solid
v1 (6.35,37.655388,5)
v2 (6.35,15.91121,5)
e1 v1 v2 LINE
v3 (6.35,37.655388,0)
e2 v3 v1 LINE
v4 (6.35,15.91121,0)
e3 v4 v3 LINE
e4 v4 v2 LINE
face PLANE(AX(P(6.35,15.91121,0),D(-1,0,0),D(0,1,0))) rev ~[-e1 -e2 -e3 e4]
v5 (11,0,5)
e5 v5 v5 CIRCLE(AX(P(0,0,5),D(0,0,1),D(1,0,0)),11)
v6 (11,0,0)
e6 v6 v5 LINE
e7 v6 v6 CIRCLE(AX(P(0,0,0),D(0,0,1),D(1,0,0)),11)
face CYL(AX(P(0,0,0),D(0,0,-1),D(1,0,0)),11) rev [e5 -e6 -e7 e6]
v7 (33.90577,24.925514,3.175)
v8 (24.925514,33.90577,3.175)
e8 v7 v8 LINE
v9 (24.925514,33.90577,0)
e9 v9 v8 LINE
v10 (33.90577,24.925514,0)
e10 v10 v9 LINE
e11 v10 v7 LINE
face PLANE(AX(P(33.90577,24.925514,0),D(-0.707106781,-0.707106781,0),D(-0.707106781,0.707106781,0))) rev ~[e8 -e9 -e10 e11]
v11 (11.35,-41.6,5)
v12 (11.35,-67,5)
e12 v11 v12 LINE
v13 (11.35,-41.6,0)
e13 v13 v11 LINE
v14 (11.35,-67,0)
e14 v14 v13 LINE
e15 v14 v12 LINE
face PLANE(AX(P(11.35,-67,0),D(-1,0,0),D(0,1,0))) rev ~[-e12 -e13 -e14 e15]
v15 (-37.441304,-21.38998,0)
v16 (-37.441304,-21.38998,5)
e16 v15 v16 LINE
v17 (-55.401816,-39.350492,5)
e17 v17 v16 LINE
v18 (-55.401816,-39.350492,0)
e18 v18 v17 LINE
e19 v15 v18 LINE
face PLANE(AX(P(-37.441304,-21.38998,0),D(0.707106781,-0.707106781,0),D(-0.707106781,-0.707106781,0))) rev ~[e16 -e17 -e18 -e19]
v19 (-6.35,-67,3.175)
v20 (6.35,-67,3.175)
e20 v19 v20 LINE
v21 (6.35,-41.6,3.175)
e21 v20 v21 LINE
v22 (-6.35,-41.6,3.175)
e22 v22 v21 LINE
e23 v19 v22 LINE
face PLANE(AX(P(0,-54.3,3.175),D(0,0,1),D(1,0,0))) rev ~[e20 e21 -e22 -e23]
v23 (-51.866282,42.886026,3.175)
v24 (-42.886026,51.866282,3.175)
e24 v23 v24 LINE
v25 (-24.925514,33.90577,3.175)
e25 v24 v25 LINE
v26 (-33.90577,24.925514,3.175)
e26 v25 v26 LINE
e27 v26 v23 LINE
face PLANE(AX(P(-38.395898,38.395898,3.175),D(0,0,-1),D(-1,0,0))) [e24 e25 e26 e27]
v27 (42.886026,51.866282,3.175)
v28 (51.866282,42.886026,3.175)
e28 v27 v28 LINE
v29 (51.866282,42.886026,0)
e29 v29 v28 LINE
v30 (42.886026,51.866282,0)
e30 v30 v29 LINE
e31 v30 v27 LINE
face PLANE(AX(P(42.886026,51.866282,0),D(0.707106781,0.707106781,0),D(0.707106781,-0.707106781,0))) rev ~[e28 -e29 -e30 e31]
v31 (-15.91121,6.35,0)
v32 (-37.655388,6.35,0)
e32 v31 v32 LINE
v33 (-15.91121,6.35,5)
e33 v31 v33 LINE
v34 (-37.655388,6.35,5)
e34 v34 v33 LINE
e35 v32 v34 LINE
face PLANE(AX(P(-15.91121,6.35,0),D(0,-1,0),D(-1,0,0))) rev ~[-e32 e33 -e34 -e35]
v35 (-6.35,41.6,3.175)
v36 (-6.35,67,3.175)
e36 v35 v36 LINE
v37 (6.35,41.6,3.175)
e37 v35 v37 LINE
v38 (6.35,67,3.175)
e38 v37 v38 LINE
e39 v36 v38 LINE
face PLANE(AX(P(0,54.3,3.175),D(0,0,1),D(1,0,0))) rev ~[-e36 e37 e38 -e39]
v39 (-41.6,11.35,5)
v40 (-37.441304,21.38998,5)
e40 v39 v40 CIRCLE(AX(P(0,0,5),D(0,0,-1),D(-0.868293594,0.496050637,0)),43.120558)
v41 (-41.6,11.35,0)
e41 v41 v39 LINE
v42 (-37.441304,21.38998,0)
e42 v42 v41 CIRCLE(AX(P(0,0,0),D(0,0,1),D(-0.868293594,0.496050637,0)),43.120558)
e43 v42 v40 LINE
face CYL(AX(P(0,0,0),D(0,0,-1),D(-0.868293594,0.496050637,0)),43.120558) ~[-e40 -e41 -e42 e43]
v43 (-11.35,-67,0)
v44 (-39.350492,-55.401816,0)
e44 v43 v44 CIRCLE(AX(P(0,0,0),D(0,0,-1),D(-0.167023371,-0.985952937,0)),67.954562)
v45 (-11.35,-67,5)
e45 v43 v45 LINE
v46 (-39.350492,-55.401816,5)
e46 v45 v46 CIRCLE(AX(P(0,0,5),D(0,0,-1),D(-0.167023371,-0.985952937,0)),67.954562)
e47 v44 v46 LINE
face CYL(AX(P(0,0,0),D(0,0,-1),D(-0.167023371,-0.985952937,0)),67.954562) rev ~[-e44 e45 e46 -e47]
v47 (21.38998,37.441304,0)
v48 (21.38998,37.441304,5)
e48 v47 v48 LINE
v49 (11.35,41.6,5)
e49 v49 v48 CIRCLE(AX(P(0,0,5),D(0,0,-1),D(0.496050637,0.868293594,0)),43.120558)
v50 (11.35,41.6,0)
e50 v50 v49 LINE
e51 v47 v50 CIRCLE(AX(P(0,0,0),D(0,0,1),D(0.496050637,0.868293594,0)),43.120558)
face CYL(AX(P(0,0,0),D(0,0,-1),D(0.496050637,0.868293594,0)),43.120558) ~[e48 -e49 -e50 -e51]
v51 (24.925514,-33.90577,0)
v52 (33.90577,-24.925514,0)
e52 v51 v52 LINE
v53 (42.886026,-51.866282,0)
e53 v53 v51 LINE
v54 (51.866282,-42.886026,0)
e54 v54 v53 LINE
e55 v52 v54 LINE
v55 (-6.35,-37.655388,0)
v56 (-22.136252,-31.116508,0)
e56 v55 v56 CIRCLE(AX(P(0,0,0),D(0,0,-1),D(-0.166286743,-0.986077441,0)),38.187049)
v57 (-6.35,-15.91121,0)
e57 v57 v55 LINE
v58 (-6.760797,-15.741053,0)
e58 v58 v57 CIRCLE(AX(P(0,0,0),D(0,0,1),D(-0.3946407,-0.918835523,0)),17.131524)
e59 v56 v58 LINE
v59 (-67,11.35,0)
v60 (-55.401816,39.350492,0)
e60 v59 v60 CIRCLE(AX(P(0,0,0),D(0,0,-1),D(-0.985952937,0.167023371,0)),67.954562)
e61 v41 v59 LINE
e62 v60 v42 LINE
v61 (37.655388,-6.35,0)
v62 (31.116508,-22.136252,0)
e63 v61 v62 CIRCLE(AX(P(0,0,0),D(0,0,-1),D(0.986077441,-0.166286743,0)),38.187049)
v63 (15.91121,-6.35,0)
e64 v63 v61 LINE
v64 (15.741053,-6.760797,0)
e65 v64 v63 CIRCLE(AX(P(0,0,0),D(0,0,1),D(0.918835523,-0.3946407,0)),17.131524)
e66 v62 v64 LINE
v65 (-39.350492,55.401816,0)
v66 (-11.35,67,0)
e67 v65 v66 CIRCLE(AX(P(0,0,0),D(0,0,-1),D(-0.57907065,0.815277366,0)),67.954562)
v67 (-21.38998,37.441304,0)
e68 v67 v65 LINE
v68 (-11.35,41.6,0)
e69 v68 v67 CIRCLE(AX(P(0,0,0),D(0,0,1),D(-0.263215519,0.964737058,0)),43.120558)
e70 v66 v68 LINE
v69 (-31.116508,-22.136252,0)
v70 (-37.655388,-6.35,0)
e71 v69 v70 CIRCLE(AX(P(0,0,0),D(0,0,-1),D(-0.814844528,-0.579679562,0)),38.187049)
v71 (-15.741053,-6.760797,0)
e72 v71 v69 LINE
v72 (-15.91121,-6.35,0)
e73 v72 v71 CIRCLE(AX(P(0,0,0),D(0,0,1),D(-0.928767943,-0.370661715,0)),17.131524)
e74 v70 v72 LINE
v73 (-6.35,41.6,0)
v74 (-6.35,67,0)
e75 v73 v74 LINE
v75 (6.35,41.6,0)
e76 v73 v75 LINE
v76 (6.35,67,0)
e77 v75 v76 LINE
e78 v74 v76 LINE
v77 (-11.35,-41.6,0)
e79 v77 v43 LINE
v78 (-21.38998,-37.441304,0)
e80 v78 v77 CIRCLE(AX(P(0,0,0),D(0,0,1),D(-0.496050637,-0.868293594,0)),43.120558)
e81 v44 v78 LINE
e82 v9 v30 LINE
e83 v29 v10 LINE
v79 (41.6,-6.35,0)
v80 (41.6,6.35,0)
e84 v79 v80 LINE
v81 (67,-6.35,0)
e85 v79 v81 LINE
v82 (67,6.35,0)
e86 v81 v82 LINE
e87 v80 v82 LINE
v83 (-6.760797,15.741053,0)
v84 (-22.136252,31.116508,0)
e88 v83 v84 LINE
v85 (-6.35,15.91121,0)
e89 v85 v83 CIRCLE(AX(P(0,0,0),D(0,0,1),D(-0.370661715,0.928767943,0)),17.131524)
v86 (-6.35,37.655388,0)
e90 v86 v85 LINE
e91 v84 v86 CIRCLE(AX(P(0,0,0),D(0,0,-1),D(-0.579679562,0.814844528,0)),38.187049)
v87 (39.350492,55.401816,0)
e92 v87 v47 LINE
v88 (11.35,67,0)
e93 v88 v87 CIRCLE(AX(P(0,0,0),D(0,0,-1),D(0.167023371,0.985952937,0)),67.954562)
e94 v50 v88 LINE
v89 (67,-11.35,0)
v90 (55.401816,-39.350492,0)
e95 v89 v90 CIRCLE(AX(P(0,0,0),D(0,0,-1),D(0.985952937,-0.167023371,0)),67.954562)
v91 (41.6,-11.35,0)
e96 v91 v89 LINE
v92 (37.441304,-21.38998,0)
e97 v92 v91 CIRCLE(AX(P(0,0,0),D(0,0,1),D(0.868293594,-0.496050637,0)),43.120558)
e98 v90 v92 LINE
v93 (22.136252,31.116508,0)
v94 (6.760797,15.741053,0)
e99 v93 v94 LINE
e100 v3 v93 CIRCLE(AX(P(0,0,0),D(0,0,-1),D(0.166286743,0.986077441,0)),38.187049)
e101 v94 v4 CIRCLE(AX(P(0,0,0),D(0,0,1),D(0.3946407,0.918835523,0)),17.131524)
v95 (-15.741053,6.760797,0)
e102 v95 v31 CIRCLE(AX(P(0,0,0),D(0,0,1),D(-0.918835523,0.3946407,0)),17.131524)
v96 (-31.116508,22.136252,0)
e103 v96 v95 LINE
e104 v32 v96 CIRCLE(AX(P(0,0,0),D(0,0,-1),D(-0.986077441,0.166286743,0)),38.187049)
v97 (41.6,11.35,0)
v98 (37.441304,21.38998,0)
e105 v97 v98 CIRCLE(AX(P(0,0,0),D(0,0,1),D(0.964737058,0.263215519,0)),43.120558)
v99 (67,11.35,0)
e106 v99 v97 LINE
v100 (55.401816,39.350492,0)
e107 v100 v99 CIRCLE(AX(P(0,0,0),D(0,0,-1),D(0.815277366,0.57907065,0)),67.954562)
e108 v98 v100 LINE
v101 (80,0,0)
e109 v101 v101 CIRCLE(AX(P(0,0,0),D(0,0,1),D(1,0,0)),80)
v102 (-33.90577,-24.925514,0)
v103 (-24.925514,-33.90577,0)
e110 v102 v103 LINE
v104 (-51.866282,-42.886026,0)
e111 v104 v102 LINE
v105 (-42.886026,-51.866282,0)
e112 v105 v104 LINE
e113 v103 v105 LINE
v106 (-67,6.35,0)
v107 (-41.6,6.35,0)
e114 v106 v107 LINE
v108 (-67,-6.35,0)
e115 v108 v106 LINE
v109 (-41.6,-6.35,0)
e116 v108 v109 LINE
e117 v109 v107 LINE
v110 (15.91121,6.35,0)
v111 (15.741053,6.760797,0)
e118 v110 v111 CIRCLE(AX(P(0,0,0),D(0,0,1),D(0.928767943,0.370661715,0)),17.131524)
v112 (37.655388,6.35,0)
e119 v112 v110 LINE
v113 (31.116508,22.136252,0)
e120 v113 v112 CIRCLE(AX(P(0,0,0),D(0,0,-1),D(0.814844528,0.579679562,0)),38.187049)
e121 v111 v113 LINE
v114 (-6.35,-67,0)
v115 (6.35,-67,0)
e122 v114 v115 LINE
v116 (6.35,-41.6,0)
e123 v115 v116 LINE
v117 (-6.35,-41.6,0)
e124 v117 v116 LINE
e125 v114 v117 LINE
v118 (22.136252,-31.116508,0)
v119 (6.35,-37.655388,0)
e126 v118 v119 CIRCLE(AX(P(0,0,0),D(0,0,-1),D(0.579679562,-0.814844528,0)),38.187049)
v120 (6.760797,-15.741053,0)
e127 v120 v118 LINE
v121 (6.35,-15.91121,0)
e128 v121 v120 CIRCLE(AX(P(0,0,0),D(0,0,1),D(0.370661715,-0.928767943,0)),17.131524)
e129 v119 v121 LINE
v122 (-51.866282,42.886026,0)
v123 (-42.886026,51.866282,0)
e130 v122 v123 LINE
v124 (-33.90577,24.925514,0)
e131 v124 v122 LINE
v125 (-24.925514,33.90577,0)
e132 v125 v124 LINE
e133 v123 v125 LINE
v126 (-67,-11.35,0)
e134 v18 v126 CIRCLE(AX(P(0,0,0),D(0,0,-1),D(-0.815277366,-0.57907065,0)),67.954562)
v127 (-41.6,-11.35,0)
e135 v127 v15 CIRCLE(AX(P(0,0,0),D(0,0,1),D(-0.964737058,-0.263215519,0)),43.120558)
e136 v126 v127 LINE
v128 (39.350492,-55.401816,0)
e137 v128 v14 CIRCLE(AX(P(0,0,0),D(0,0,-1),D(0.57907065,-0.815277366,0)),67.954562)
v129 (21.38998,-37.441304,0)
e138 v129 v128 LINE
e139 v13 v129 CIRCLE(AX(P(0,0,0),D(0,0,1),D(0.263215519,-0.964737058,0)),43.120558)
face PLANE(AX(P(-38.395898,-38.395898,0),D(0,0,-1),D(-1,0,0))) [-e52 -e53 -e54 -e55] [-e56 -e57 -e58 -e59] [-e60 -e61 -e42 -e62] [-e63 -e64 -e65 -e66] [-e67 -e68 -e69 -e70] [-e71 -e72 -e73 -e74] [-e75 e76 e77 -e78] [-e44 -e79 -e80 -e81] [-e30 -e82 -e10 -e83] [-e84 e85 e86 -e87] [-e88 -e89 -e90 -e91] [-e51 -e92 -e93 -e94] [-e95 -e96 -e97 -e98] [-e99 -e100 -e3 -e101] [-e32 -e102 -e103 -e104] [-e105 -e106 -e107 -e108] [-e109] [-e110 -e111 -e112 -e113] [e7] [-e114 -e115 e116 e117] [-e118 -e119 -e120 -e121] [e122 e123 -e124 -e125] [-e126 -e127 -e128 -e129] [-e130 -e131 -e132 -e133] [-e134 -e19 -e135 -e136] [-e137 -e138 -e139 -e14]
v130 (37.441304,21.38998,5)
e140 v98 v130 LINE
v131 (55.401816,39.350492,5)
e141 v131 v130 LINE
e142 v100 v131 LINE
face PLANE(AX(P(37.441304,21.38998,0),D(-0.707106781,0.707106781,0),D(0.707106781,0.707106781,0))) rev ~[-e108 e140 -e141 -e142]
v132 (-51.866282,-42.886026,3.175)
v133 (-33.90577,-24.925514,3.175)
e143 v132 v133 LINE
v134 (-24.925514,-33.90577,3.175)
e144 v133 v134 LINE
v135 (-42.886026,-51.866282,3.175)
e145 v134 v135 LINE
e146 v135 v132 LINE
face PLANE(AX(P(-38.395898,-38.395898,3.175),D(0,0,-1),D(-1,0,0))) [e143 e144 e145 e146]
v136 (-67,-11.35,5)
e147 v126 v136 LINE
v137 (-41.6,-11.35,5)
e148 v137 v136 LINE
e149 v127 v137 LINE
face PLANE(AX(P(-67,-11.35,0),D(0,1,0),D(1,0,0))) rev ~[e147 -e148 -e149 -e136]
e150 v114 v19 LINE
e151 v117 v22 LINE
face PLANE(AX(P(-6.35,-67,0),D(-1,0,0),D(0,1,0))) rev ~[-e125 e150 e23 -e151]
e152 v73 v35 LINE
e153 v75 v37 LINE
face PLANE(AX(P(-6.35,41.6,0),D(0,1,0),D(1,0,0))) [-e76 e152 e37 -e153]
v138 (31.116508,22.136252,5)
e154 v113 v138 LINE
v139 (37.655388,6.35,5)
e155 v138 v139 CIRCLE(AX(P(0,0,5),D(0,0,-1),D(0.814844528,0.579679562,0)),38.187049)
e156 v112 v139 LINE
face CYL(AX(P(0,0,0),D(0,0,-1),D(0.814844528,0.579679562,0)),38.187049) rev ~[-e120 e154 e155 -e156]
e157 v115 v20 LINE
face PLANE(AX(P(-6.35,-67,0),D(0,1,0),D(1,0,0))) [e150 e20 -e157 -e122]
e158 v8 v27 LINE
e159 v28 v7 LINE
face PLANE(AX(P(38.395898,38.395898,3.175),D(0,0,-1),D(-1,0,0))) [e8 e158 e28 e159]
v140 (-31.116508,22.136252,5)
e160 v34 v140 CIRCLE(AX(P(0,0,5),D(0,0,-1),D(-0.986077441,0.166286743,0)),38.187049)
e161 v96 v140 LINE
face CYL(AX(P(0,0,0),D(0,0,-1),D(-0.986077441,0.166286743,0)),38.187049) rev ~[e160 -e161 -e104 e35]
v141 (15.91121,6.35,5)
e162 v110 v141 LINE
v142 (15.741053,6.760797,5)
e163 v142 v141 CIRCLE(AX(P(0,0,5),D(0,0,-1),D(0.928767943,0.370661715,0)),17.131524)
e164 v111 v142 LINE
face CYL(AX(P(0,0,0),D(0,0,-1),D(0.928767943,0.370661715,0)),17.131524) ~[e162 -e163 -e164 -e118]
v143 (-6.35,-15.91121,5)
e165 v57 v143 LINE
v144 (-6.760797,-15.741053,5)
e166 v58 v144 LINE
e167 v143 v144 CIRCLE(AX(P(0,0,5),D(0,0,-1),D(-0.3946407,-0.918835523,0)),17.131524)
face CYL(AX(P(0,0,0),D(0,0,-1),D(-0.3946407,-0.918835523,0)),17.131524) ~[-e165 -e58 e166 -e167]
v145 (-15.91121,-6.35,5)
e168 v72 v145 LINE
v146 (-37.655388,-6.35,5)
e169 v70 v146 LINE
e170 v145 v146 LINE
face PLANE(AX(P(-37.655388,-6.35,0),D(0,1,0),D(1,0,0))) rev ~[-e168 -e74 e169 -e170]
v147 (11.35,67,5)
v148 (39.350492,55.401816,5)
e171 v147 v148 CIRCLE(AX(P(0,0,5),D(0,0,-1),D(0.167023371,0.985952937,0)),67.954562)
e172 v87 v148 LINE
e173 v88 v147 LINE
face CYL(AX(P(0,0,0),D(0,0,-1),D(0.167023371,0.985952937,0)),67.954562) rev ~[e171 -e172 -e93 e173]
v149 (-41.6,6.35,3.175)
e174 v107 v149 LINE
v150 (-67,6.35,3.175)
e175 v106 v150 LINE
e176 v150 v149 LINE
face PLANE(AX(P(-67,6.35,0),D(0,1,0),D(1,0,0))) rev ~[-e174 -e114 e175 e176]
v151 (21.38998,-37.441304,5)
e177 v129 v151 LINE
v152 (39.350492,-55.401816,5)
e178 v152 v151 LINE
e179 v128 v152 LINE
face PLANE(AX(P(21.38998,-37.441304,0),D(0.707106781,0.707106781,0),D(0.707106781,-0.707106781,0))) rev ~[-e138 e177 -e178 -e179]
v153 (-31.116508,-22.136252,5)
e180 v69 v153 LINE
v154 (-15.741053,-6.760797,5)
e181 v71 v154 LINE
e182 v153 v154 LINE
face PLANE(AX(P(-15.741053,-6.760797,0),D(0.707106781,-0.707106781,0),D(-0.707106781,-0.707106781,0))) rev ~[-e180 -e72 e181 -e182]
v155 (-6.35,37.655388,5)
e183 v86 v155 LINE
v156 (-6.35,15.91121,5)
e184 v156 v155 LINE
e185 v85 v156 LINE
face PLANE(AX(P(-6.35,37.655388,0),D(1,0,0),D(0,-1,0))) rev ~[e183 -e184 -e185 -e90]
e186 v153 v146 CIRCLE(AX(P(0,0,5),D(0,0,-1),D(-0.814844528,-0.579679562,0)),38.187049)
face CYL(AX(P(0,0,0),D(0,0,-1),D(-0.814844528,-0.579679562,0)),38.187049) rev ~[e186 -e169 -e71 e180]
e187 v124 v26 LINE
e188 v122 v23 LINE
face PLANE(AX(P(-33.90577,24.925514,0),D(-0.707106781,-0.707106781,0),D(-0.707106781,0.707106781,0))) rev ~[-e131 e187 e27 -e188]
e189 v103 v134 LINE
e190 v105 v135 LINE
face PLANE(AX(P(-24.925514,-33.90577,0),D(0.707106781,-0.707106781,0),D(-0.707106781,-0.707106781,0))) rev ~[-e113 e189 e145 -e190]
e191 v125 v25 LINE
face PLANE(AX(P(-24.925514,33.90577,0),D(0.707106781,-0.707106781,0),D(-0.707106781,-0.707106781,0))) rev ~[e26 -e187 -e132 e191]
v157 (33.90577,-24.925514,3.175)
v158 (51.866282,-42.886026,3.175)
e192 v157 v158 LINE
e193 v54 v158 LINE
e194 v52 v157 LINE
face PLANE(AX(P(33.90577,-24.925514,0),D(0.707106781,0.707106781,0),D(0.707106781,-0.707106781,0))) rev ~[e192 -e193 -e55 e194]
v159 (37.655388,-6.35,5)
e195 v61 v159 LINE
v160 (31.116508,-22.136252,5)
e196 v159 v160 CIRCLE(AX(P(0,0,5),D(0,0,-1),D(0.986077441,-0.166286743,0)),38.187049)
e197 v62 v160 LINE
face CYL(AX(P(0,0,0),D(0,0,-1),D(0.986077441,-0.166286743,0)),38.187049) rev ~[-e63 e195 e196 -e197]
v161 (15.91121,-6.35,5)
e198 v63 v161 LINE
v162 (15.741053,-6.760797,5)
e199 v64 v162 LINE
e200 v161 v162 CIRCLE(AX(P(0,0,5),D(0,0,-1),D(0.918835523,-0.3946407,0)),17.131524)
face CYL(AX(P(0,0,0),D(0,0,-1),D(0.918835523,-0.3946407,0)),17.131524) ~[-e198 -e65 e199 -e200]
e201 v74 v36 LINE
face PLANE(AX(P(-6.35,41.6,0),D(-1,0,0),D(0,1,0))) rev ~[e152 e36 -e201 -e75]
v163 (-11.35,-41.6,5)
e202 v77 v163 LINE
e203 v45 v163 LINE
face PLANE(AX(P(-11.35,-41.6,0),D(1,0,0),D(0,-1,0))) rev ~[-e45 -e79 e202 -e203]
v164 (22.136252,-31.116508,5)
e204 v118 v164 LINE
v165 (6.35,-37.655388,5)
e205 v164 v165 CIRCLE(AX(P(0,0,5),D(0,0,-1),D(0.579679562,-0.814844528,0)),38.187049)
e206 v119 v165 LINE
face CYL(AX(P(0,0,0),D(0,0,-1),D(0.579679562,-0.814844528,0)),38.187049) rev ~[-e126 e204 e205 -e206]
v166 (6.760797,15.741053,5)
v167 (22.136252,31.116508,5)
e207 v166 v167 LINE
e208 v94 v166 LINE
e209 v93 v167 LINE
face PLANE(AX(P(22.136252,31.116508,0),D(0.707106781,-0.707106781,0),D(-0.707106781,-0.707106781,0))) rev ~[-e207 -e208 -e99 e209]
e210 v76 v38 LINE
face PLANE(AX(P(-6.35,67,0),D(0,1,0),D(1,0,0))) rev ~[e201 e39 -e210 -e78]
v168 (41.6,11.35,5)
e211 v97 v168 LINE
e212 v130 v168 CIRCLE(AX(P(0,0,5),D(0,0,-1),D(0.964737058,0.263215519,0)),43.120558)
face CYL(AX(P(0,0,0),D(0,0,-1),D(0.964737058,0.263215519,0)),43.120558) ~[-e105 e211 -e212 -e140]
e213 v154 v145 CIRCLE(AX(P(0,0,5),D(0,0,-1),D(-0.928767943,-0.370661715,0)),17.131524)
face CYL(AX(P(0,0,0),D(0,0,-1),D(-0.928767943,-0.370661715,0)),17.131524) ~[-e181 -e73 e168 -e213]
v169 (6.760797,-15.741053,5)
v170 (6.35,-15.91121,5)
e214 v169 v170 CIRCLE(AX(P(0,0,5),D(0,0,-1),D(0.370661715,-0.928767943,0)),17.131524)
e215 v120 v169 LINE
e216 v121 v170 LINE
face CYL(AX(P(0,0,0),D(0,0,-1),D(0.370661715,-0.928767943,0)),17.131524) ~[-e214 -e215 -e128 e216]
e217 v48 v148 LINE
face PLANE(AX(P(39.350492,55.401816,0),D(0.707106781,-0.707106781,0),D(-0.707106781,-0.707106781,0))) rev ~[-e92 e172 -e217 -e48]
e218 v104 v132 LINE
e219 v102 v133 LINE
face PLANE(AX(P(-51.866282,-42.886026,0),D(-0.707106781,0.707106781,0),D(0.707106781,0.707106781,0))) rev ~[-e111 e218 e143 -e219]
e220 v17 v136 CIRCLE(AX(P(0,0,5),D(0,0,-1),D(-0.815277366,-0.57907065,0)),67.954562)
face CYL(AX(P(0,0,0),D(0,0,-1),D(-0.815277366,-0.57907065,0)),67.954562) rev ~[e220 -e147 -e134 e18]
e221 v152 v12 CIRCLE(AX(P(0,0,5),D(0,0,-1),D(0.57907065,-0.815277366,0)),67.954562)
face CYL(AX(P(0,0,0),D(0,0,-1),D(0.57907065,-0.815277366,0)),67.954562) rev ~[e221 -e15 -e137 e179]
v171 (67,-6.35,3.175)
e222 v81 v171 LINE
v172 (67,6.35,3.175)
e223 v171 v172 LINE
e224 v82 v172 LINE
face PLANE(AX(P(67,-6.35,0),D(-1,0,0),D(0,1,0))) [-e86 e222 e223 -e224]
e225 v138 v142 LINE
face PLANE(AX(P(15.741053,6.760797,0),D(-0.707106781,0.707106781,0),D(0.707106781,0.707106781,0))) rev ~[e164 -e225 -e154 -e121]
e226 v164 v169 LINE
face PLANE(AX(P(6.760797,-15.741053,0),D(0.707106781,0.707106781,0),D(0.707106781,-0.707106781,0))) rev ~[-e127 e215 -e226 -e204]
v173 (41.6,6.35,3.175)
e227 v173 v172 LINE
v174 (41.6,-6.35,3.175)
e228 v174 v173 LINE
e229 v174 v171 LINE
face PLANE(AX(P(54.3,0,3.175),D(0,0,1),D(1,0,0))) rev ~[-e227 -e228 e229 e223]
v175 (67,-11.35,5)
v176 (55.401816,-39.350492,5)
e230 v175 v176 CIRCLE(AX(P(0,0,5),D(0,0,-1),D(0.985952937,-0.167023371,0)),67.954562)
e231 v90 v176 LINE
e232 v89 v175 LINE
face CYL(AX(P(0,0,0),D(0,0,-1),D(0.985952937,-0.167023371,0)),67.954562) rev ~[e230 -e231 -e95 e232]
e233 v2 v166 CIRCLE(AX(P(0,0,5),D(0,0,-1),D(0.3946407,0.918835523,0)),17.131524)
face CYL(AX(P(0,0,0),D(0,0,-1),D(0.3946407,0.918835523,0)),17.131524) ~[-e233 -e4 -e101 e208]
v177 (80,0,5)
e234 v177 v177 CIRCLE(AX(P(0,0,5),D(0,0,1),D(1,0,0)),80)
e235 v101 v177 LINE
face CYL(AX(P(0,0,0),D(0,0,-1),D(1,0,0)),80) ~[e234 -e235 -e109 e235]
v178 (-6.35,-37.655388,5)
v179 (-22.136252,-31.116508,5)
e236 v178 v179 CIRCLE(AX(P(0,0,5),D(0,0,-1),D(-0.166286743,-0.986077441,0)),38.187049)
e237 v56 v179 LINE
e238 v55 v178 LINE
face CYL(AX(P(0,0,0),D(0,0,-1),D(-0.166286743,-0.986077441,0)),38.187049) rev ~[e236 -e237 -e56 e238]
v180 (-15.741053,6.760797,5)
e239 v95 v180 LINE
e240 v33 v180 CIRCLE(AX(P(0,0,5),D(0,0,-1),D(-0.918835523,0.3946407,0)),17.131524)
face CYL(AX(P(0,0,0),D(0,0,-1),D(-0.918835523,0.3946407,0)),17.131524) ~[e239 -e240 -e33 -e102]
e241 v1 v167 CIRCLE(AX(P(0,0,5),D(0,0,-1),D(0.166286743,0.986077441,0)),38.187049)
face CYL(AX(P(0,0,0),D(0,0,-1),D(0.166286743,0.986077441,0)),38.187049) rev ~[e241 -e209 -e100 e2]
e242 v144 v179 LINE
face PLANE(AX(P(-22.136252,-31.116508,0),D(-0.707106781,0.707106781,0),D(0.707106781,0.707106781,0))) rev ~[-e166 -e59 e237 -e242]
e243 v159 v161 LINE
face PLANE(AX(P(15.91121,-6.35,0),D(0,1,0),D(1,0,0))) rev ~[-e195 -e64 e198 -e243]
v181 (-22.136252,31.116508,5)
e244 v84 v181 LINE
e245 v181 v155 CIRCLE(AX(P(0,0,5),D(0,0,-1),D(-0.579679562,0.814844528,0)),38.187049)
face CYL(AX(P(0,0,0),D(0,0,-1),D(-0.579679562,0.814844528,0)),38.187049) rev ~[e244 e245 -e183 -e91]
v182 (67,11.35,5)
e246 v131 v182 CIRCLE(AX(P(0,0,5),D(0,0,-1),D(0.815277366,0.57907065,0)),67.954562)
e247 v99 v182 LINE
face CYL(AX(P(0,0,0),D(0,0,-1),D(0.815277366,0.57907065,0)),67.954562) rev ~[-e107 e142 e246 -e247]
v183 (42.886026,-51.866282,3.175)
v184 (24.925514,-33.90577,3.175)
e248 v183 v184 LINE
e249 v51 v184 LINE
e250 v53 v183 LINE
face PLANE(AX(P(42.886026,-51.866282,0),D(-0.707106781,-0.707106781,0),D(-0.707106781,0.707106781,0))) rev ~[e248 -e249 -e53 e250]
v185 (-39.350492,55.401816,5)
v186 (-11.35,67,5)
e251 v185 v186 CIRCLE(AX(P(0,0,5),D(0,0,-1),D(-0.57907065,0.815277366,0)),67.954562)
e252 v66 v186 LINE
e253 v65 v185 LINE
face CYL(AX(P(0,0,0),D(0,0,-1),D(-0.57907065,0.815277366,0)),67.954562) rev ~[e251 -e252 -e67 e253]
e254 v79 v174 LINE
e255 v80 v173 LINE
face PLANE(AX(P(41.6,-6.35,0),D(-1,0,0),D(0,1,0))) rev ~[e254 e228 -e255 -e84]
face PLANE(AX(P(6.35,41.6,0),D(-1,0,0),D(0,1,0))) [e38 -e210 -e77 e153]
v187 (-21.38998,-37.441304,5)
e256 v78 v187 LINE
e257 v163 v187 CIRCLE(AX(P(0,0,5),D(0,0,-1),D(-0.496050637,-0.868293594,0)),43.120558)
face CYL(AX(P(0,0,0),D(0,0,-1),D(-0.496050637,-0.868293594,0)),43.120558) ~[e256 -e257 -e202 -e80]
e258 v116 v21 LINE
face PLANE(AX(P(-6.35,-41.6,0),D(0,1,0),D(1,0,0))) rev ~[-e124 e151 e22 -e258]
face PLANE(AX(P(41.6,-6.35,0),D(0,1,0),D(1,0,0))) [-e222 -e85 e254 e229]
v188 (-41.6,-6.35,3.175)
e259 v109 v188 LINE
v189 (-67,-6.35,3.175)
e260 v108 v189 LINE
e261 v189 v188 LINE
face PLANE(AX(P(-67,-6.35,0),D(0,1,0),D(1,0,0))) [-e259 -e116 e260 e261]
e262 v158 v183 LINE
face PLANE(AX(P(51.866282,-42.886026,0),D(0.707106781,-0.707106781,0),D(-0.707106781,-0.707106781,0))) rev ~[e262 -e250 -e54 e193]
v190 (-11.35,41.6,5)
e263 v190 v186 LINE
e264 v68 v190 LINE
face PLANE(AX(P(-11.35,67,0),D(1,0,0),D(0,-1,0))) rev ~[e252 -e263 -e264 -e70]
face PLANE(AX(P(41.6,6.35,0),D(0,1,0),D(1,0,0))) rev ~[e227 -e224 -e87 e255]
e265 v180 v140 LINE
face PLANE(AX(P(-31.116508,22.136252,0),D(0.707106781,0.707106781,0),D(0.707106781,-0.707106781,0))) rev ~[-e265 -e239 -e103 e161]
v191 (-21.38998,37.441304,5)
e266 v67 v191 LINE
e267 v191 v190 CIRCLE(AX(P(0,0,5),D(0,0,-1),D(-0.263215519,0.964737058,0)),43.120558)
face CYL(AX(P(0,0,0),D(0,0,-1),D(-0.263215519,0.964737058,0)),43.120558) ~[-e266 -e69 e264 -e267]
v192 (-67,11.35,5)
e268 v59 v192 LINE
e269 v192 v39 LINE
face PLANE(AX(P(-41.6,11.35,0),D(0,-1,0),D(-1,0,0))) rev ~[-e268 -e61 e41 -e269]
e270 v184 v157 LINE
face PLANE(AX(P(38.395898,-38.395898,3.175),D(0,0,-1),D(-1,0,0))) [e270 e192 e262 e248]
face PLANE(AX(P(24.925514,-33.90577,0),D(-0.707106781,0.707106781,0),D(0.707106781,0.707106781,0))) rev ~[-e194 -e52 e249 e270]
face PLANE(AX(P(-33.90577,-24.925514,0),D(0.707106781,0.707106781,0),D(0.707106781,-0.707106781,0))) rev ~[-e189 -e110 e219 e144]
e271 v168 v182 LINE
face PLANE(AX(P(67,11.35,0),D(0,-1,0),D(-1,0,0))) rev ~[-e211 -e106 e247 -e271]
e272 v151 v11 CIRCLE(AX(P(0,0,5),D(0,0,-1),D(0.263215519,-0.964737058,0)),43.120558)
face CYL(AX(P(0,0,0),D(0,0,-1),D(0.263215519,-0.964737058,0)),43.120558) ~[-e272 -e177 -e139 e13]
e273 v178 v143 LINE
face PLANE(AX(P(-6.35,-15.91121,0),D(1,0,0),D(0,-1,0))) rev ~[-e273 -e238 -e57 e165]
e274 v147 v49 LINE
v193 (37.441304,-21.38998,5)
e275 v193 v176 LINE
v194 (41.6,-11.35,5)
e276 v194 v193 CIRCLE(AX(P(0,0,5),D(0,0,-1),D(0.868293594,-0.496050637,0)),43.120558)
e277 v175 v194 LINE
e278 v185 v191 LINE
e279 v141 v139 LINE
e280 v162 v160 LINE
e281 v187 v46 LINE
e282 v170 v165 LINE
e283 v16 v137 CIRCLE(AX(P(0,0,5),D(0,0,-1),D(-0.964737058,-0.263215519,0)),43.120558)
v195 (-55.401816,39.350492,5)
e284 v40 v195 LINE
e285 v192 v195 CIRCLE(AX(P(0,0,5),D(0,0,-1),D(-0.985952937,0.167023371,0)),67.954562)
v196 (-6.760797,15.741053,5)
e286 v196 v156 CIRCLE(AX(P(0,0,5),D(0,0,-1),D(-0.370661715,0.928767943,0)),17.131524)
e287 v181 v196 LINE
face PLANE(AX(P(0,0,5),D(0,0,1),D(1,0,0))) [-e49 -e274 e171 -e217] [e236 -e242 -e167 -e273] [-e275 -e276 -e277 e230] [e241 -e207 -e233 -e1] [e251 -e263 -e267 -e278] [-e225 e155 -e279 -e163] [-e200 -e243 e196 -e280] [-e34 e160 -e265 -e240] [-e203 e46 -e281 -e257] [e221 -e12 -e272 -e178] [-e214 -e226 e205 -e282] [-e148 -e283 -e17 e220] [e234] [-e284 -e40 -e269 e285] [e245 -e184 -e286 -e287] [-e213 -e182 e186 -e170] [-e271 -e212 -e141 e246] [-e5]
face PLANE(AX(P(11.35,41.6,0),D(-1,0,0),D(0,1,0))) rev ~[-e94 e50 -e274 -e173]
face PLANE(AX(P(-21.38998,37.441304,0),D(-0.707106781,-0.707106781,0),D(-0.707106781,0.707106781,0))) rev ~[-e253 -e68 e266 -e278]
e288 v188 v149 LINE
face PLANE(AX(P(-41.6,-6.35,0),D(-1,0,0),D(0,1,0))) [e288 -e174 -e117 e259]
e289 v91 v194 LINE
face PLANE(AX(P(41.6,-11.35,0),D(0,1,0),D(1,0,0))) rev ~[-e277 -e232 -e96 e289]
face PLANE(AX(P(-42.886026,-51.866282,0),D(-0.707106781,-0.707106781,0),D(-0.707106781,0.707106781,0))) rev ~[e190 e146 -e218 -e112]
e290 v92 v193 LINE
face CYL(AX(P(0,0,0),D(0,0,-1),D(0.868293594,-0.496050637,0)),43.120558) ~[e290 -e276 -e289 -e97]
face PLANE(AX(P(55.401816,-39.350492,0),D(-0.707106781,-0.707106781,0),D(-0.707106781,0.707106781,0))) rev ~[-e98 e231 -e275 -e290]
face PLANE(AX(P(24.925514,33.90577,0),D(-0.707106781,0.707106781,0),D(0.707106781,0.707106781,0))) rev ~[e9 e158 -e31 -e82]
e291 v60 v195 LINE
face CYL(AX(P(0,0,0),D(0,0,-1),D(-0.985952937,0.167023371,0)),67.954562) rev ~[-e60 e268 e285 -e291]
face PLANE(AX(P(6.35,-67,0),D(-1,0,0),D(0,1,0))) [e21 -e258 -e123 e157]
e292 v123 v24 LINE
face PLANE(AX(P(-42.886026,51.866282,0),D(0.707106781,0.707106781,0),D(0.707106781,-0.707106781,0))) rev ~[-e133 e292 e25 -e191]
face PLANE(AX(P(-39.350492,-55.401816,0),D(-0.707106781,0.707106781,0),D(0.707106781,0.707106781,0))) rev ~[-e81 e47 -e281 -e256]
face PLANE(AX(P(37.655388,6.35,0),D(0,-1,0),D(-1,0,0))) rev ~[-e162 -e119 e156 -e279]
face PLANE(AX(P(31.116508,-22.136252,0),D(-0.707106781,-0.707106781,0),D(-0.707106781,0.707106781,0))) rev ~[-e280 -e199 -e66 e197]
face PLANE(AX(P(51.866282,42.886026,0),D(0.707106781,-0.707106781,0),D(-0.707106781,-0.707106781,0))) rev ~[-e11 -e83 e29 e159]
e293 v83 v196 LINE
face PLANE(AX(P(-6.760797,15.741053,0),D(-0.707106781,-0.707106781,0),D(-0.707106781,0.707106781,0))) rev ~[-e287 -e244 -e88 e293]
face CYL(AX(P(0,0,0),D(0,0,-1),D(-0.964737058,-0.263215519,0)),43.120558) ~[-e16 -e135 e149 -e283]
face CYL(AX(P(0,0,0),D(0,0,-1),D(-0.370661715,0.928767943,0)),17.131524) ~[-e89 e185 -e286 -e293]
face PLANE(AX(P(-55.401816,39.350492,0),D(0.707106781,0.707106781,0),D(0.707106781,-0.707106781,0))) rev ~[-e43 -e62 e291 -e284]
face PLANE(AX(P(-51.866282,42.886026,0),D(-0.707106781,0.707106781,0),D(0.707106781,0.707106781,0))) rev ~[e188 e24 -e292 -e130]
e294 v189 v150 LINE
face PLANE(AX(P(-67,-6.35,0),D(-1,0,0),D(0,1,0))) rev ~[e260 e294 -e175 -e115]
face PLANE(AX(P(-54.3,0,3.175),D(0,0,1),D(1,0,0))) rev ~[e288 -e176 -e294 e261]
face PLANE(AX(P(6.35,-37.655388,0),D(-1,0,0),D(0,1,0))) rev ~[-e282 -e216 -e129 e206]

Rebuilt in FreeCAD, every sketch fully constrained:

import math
import FreeCAD as App
import Part
import Sketcher

V = App.Vector

doc = App.newDocument("Part")
params = doc.addObject("Spreadsheet::Sheet", "Params")
for row, (alias, value) in enumerate([
    ("sketch1_diameter", "160 mm"),
    ("sketch1_diameter2", "22 mm"),
    ("pad1_length", "5 mm"),
    ("sketch2_width", "25.4 mm"),
    ("sketch2_width2", "12.7 mm"),
    ("sketch2_length", "25.4 mm"),
    ("sketch2_length2", "12.7 mm"),
    ("pocket1_length", "3.175 mm"),
    ("pocket2_length", "19 mm"),
    ("sketch4_width", "25.4 mm"),
    ("sketch4_length", "25.4 mm"),
    ("pocket3_length", "19 mm"),
], start=1):
    params.set(f"A{row}", alias)
    params.set(f"B{row}", "=" + value)
    params.setAlias(f"B{row}", alias)

body = doc.addObject("PartDesign::Body", "Body")

sketch1 = doc.addObject("Sketcher::SketchObject", "Sketch")
body.addObject(sketch1)
sketch1.AttachmentSupport = (doc.XY_Plane, [""])
sketch1.MapMode = "FlatFace"
sketch1.addGeometry([
    Part.Circle(V(0, 0, 0), V(0, 0, 1), 80),
    Part.Circle(V(0, 0, 0), V(0, 0, 1), 11),
], False)
sketch1.addConstraint([
    Sketcher.Constraint("Coincident", 0, 3, -1, 1),
    Sketcher.Constraint("Coincident", 1, 3, -1, 1),
    Sketcher.Constraint("Diameter", 0, 160.0),
    Sketcher.Constraint("Diameter", 1, 22.0),
])
sketch1.setExpression("Constraints[2]", "Params.sketch1_diameter")
sketch1.setExpression("Constraints[3]", "Params.sketch1_diameter2")
pad1 = doc.addObject("PartDesign::Pad", "Pad")
body.addObject(pad1)
pad1.Profile = sketch1
pad1.setExpression("Length", "Params.pad1_length")

sketch2 = doc.addObject("Sketcher::SketchObject", "Sketch001")
body.addObject(sketch2)
sketch2.AttachmentSupport = (doc.XY_Plane, [""])
sketch2.MapMode = "FlatFace"
sketch2.addGeometry([
    Part.LineSegment(V(52, -43, 0), V(34, -25, 0)),
    Part.LineSegment(V(34, -25, 0), V(25, -34, 0)),
    Part.LineSegment(V(25, -34, 0), V(43, -52, 0)),
    Part.LineSegment(V(43, -52, 0), V(52, -43, 0)),
    Part.LineSegment(V(42, 6, 0), V(42, -6, 0)),
    Part.LineSegment(V(42, -6, 0), V(67, -6, 0)),
    Part.LineSegment(V(67, -6, 0), V(67, 6, 0)),
    Part.LineSegment(V(67, 6, 0), V(42, 6, 0)),
    Part.LineSegment(V(-6, -42, 0), V(-6, -67, 0)),
    Part.LineSegment(V(-6, -67, 0), V(6, -67, 0)),
    Part.LineSegment(V(6, -67, 0), V(6, -42, 0)),
    Part.LineSegment(V(6, -42, 0), V(-6, -42, 0)),
    Part.LineSegment(V(-43, -52, 0), V(-25, -34, 0)),
    Part.LineSegment(V(-25, -34, 0), V(-34, -25, 0)),
    Part.LineSegment(V(-34, -25, 0), V(-52, -43, 0)),
    Part.LineSegment(V(-52, -43, 0), V(-43, -52, 0)),
    Part.LineSegment(V(-67, 6, 0), V(-67, -6, 0)),
    Part.LineSegment(V(-67, -6, 0), V(-42, -6, 0)),
    Part.LineSegment(V(-42, -6, 0), V(-42, 6, 0)),
    Part.LineSegment(V(-42, 6, 0), V(-67, 6, 0)),
    Part.LineSegment(V(-52, 43, 0), V(-34, 25, 0)),
    Part.LineSegment(V(-34, 25, 0), V(-25, 34, 0)),
    Part.LineSegment(V(-25, 34, 0), V(-43, 52, 0)),
    Part.LineSegment(V(-43, 52, 0), V(-52, 43, 0)),
    Part.LineSegment(V(-6, 67, 0), V(-6, 42, 0)),
    Part.LineSegment(V(-6, 42, 0), V(6, 42, 0)),
    Part.LineSegment(V(6, 42, 0), V(6, 67, 0)),
    Part.LineSegment(V(6, 67, 0), V(-6, 67, 0)),
    Part.LineSegment(V(43, 52, 0), V(25, 34, 0)),
    Part.LineSegment(V(25, 34, 0), V(34, 25, 0)),
    Part.LineSegment(V(34, 25, 0), V(52, 43, 0)),
    Part.LineSegment(V(52, 43, 0), V(43, 52, 0)),
], False)
sketch2.addConstraint([
    Sketcher.Constraint("Coincident", 0, 2, 1, 1),
    Sketcher.Constraint("Coincident", 1, 2, 2, 1),
    Sketcher.Constraint("Coincident", 2, 2, 3, 1),
    Sketcher.Constraint("Coincident", 3, 2, 0, 1),
    Sketcher.Constraint("Coincident", 4, 2, 5, 1),
    Sketcher.Constraint("Coincident", 5, 2, 6, 1),
    Sketcher.Constraint("Coincident", 6, 2, 7, 1),
    Sketcher.Constraint("Coincident", 7, 2, 4, 1),
    Sketcher.Constraint("Coincident", 8, 2, 9, 1),
    Sketcher.Constraint("Coincident", 9, 2, 10, 1),
    Sketcher.Constraint("Coincident", 10, 2, 11, 1),
    Sketcher.Constraint("Coincident", 11, 2, 8, 1),
    Sketcher.Constraint("Coincident", 12, 2, 13, 1),
    Sketcher.Constraint("Coincident", 13, 2, 14, 1),
    Sketcher.Constraint("Coincident", 14, 2, 15, 1),
    Sketcher.Constraint("Coincident", 15, 2, 12, 1),
    Sketcher.Constraint("Coincident", 16, 2, 17, 1),
    Sketcher.Constraint("Coincident", 17, 2, 18, 1),
    Sketcher.Constraint("Coincident", 18, 2, 19, 1),
    Sketcher.Constraint("Coincident", 19, 2, 16, 1),
    Sketcher.Constraint("Coincident", 20, 2, 21, 1),
    Sketcher.Constraint("Coincident", 21, 2, 22, 1),
    Sketcher.Constraint("Coincident", 22, 2, 23, 1),
    Sketcher.Constraint("Coincident", 23, 2, 20, 1),
    Sketcher.Constraint("Coincident", 24, 2, 25, 1),
    Sketcher.Constraint("Coincident", 25, 2, 26, 1),
    Sketcher.Constraint("Coincident", 26, 2, 27, 1),
    Sketcher.Constraint("Coincident", 27, 2, 24, 1),
    Sketcher.Constraint("Coincident", 28, 2, 29, 1),
    Sketcher.Constraint("Coincident", 29, 2, 30, 1),
    Sketcher.Constraint("Coincident", 30, 2, 31, 1),
    Sketcher.Constraint("Coincident", 31, 2, 28, 1),
    Sketcher.Constraint("Vertical", 4),
    Sketcher.Constraint("Horizontal", 5),
    Sketcher.Constraint("Vertical", 6),
    Sketcher.Constraint("Horizontal", 7),
    Sketcher.Constraint("Vertical", 8),
    Sketcher.Constraint("Horizontal", 9),
    Sketcher.Constraint("Vertical", 10),
    Sketcher.Constraint("Horizontal", 11),
    Sketcher.Constraint("Vertical", 16),
    Sketcher.Constraint("Horizontal", 17),
    Sketcher.Constraint("Vertical", 18),
    Sketcher.Constraint("Horizontal", 19),
    Sketcher.Constraint("Vertical", 24),
    Sketcher.Constraint("Horizontal", 25),
    Sketcher.Constraint("Vertical", 26),
    Sketcher.Constraint("Horizontal", 27),
    Sketcher.Constraint("Symmetric", 6, 2, 16, 2, -1, 1),
    Sketcher.Constraint("Symmetric", 4, 2, 18, 2, -1, 1),
    Sketcher.Constraint("Symmetric", 0, 2, 20, 2, -1, 1),
    Sketcher.Constraint("Symmetric", 1, 2, 21, 2, -1, 1),
    Sketcher.Constraint("Symmetric", 2, 2, 22, 2, -1, 1),
    Sketcher.Constraint("Symmetric", 3, 2, 23, 2, -1, 1),
    Sketcher.Constraint("Symmetric", 10, 2, 24, 2, -1, 1),
    Sketcher.Constraint("Symmetric", 8, 2, 26, 2, -1, 1),
    Sketcher.Constraint("Symmetric", 12, 2, 28, 2, -1, 1),
    Sketcher.Constraint("Symmetric", 13, 2, 29, 2, -1, 1),
    Sketcher.Constraint("Symmetric", 14, 2, 30, 2, -1, 1),
    Sketcher.Constraint("Symmetric", 15, 2, 31, 2, -1, 1),
    Sketcher.Constraint("Symmetric", 1, 2, 12, 2, -2),
    Sketcher.Constraint("Symmetric", 0, 2, 13, 2, -2),
    Sketcher.Constraint("Symmetric", 3, 2, 14, 2, -2),
    Sketcher.Constraint("Symmetric", 2, 2, 15, 2, -2),
    Sketcher.Constraint("Perpendicular", 0, 1),
    Sketcher.Constraint("Perpendicular", 1, 2),
    Sketcher.Constraint("Perpendicular", 2, 3),
    Sketcher.Constraint("Parallel", 3, 12),
    Sketcher.Constraint("Horizontal", 5, 2, 16, 2),
    Sketcher.Constraint("Vertical", 11, 2, 24, 2),
    Sketcher.Constraint("Equal", 27, 4),
    Sketcher.Constraint("Equal", 19, 8),
    Sketcher.Constraint("DistanceX", 5, 1, 5, 2, 25.4),
    Sketcher.Constraint("DistanceX", 9, 1, 9, 2, 12.7),
    Sketcher.Constraint("DistanceX", -1, 1, 5, 2, 67.0),
    Sketcher.Constraint("DistanceY", 8, 2, -1, 1, 67.0),
    Sketcher.Constraint("Distance", 0, 25.4),
    Sketcher.Constraint("Distance", 1, 12.7),
    Sketcher.Constraint("DistanceX", -1, 1, 0, 2, 33.90577),
    Sketcher.Constraint("DistanceY", 1, 2, -1, 1, 33.90577),
])
sketch2.setExpression("Constraints[72]", "Params.sketch2_width")
sketch2.setExpression("Constraints[73]", "Params.sketch2_width2")
sketch2.setExpression("Constraints[76]", "Params.sketch2_length")
sketch2.setExpression("Constraints[77]", "Params.sketch2_length2")
pocket1 = doc.addObject("PartDesign::Pocket", "Pocket")
body.addObject(pocket1)
pocket1.Profile = sketch2
pocket1.setExpression("Length", "Params.pocket1_length")
pocket1.Reversed = True

sketch3 = doc.addObject("Sketcher::SketchObject", "Sketch002")
body.addObject(sketch3)
sketch3.AttachmentSupport = (doc.XY_Plane, [""])
sketch3.MapMode = "FlatFace"
sketch3.addGeometry([
    Part.ArcOfCircle(Part.Circle(V(0, 0, 0), V(0, 0, 1), 38.19), math.radians(-170), math.radians(-145)),
    Part.LineSegment(V(-37.66, -6.35, 0), V(-15.91, -6.35, 0)),
    Part.ArcOfCircle(Part.Circle(V(0, 0, 0), V(0, 0, 1), 17.13), math.radians(-158.24), math.radians(-156.76)),
    Part.LineSegment(V(-15.74, -6.76, 0), V(-31.12, -22.14, 0)),
    Part.LineSegment(V(-15.91, 6.35, 0), V(-37.66, 6.35, 0)),
    Part.ArcOfCircle(Part.Circle(V(0, 0, 0), V(0, 0, 1), 38.19), math.radians(145), math.radians(170)),
    Part.LineSegment(V(-31.12, 22.14, 0), V(-15.74, 6.76, 0)),
    Part.ArcOfCircle(Part.Circle(V(0, 0, 0), V(0, 0, 1), 17.13), math.radians(156.76), math.radians(158.24)),
    Part.LineSegment(V(-6.76, 15.74, 0), V(-22.14, 31.12, 0)),
    Part.ArcOfCircle(Part.Circle(V(0, 0, 0), V(0, 0, 1), 38.19), math.radians(100), math.radians(125)),
    Part.LineSegment(V(-6.35, 37.66, 0), V(-6.35, 15.91, 0)),
    Part.ArcOfCircle(Part.Circle(V(0, 0, 0), V(0, 0, 1), 17.13), math.radians(111.76), math.radians(113.24)),
    Part.LineSegment(V(6.35, 15.91, 0), V(6.35, 37.66, 0)),
    Part.ArcOfCircle(Part.Circle(V(0, 0, 0), V(0, 0, 1), 38.19), math.radians(55), math.radians(80)),
    Part.LineSegment(V(22.14, 31.12, 0), V(6.76, 15.74, 0)),
    Part.ArcOfCircle(Part.Circle(V(0, 0, 0), V(0, 0, 1), 17.13), math.radians(66.76), math.radians(68.24)),
    Part.ArcOfCircle(Part.Circle(V(0, 0, 0), V(0, 0, 1), 38.19), math.radians(10), math.radians(35)),
    Part.LineSegment(V(37.66, 6.35, 0), V(15.91, 6.35, 0)),
    Part.ArcOfCircle(Part.Circle(V(0, 0, 0), V(0, 0, 1), 17.13), math.radians(21.76), math.radians(23.24)),
    Part.LineSegment(V(15.74, 6.76, 0), V(31.12, 22.14, 0)),
    Part.ArcOfCircle(Part.Circle(V(0, 0, 0), V(0, 0, 1), 38.19), math.radians(-35), math.radians(-10)),
    Part.LineSegment(V(31.12, -22.14, 0), V(15.74, -6.76, 0)),
    Part.ArcOfCircle(Part.Circle(V(0, 0, 0), V(0, 0, 1), 17.13), math.radians(-23.24), math.radians(-21.76)),
    Part.LineSegment(V(15.91, -6.35, 0), V(37.66, -6.35, 0)),
    Part.ArcOfCircle(Part.Circle(V(0, 0, 0), V(0, 0, 1), 38.19), math.radians(-80), math.radians(-55)),
    Part.LineSegment(V(6.35, -37.66, 0), V(6.35, -15.91, 0)),
    Part.ArcOfCircle(Part.Circle(V(0, 0, 0), V(0, 0, 1), 17.13), math.radians(-68.24), math.radians(-66.76)),
    Part.LineSegment(V(6.76, -15.74, 0), V(22.14, -31.12, 0)),
    Part.ArcOfCircle(Part.Circle(V(0, 0, 0), V(0, 0, 1), 38.19), math.radians(-125), math.radians(-100)),
    Part.LineSegment(V(-22.14, -31.12, 0), V(-6.76, -15.74, 0)),
    Part.ArcOfCircle(Part.Circle(V(0, 0, 0), V(0, 0, 1), 17.13), math.radians(-113.24), math.radians(-111.76)),
    Part.LineSegment(V(-6.35, -15.91, 0), V(-6.35, -37.66, 0)),
], False)
sketch3.addConstraint([
    Sketcher.Constraint("Coincident", 0, 1, 1, 1),
    Sketcher.Constraint("Coincident", 1, 2, 2, 1),
    Sketcher.Constraint("Coincident", 2, 2, 3, 1),
    Sketcher.Constraint("Coincident", 3, 2, 0, 2),
    Sketcher.Constraint("Coincident", 4, 2, 5, 2),
    Sketcher.Constraint("Coincident", 5, 1, 6, 1),
    Sketcher.Constraint("Coincident", 6, 2, 7, 1),
    Sketcher.Constraint("Coincident", 7, 2, 4, 1),
    Sketcher.Constraint("Coincident", 8, 2, 9, 2),
    Sketcher.Constraint("Coincident", 9, 1, 10, 1),
    Sketcher.Constraint("Coincident", 10, 2, 11, 1),
    Sketcher.Constraint("Coincident", 11, 2, 8, 1),
    Sketcher.Constraint("Coincident", 12, 2, 13, 2),
    Sketcher.Constraint("Coincident", 13, 1, 14, 1),
    Sketcher.Constraint("Coincident", 14, 2, 15, 1),
    Sketcher.Constraint("Coincident", 15, 2, 12, 1),
    Sketcher.Constraint("Coincident", 16, 1, 17, 1),
    Sketcher.Constraint("Coincident", 17, 2, 18, 1),
    Sketcher.Constraint("Coincident", 18, 2, 19, 1),
    Sketcher.Constraint("Coincident", 19, 2, 16, 2),
    Sketcher.Constraint("Coincident", 20, 1, 21, 1),
    Sketcher.Constraint("Coincident", 21, 2, 22, 1),
    Sketcher.Constraint("Coincident", 22, 2, 23, 1),
    Sketcher.Constraint("Coincident", 23, 2, 20, 2),
    Sketcher.Constraint("Coincident", 24, 1, 25, 1),
    Sketcher.Constraint("Coincident", 25, 2, 26, 1),
    Sketcher.Constraint("Coincident", 26, 2, 27, 1),
    Sketcher.Constraint("Coincident", 27, 2, 24, 2),
    Sketcher.Constraint("Coincident", 28, 1, 29, 1),
    Sketcher.Constraint("Coincident", 29, 2, 30, 1),
    Sketcher.Constraint("Coincident", 30, 2, 31, 1),
    Sketcher.Constraint("Coincident", 31, 2, 28, 2),
    Sketcher.Constraint("Horizontal", 1),
    Sketcher.Constraint("Horizontal", 4),
    Sketcher.Constraint("Vertical", 10),
    Sketcher.Constraint("Vertical", 12),
    Sketcher.Constraint("Horizontal", 17),
    Sketcher.Constraint("Horizontal", 23),
    Sketcher.Constraint("Vertical", 25),
    Sketcher.Constraint("Vertical", 31),
    Sketcher.Constraint("Coincident", 0, 3, -1, 1),
    Sketcher.Constraint("Coincident", 2, 3, -1, 1),
    Sketcher.Constraint("Coincident", 5, 3, -1, 1),
    Sketcher.Constraint("Coincident", 7, 3, -1, 1),
    Sketcher.Constraint("Coincident", 9, 3, -1, 1),
    Sketcher.Constraint("Coincident", 11, 3, -1, 1),
    Sketcher.Constraint("Coincident", 13, 3, -1, 1),
    Sketcher.Constraint("Coincident", 15, 3, -1, 1),
    Sketcher.Constraint("Coincident", 16, 3, -1, 1),
    Sketcher.Constraint("Coincident", 18, 3, -1, 1),
    Sketcher.Constraint("Coincident", 20, 3, -1, 1),
    Sketcher.Constraint("Coincident", 22, 3, -1, 1),
    Sketcher.Constraint("Coincident", 24, 3, -1, 1),
    Sketcher.Constraint("Coincident", 26, 3, -1, 1),
    Sketcher.Constraint("Coincident", 28, 3, -1, 1),
    Sketcher.Constraint("Coincident", 30, 3, -1, 1),
    Sketcher.Constraint("Equal", 0, 5),
    Sketcher.Constraint("Equal", 2, 7),
    Sketcher.Constraint("Equal", 5, 9),
    Sketcher.Constraint("Equal", 7, 11),
    Sketcher.Constraint("Equal", 9, 13),
    Sketcher.Constraint("Equal", 11, 15),
    Sketcher.Constraint("Equal", 13, 16),
    Sketcher.Constraint("Equal", 15, 18),
    Sketcher.Constraint("Equal", 16, 20),
    Sketcher.Constraint("Equal", 18, 22),
    Sketcher.Constraint("Equal", 20, 24),
    Sketcher.Constraint("Equal", 22, 26),
    Sketcher.Constraint("Equal", 24, 28),
    Sketcher.Constraint("Equal", 26, 30),
    Sketcher.Constraint("Perpendicular", 3, 6),
    Sketcher.Constraint("Parallel", 6, 8),
    Sketcher.Constraint("Perpendicular", 8, 14),
    Sketcher.Constraint("Parallel", 14, 19),
    Sketcher.Constraint("Perpendicular", 19, 21),
    Sketcher.Constraint("Parallel", 21, 27),
    Sketcher.Constraint("Perpendicular", 27, 29),
    Sketcher.Constraint("Horizontal", 9, 1, 12, 2),
    Sketcher.Constraint("Horizontal", 8, 2, 13, 1),
    Sketcher.Constraint("Horizontal", 11, 2, 14, 2),
    Sketcher.Constraint("Horizontal", 7, 2, 16, 1),
    Sketcher.Constraint("Horizontal", 6, 2, 18, 2),
    Sketcher.Constraint("Horizontal", 3, 2, 20, 1),
    Sketcher.Constraint("Horizontal", 1, 2, 22, 2),
    Sketcher.Constraint("Horizontal", 27, 2, 28, 1),
    Sketcher.Constraint("Horizontal", 25, 2, 30, 2),
    Sketcher.Constraint("Vertical", 0, 1, 4, 2),
    Sketcher.Constraint("Vertical", 3, 2, 5, 1),
    Sketcher.Constraint("Vertical", 15, 2, 24, 1),
    Sketcher.Constraint("Vertical", 14, 2, 26, 2),
    Sketcher.Constraint("Equal", 23, 10),
    Sketcher.Constraint("Equal", 6, 8),
    Sketcher.Constraint("DistanceY", 0, 1, 4, 2, 12.7),
    Sketcher.Constraint("Radius", 0, 38.187049),
    Sketcher.Constraint("Radius", 2, 17.131524),
    Sketcher.Constraint("DistanceX", 8, 2, 6, 2, 6.395199),
])
pocket2 = doc.addObject("PartDesign::Pocket", "Pocket001")
body.addObject(pocket2)
pocket2.Profile = sketch3
pocket2.setExpression("Length", "Params.pocket2_length")
pocket2.Reversed = True

sketch4 = doc.addObject("Sketcher::SketchObject", "Sketch003")
body.addObject(sketch4)
sketch4.AttachmentSupport = (doc.XY_Plane, [""])
sketch4.MapMode = "FlatFace"
sketch4.addGeometry([
    Part.LineSegment(V(21, -37, 0), V(39, -55, 0)),
    Part.ArcOfCircle(Part.Circle(V(0, 0, 0), V(0, 0, 1), 68), math.radians(-80), math.radians(-55)),
    Part.LineSegment(V(11, -67, 0), V(11, -42, 0)),
    Part.ArcOfCircle(Part.Circle(V(0, 0, 0), V(0, 0, 1), 43), math.radians(-74.74), math.radians(-60.26)),
    Part.LineSegment(V(42, -11, 0), V(67, -11, 0)),
    Part.ArcOfCircle(Part.Circle(V(0, 0, 0), V(0, 0, 1), 68), math.radians(-35), math.radians(-10)),
    Part.LineSegment(V(55, -39, 0), V(37, -21, 0)),
    Part.ArcOfCircle(Part.Circle(V(0, 0, 0), V(0, 0, 1), 43), math.radians(-29.74), math.radians(-15.26)),
    Part.LineSegment(V(37, 21, 0), V(55, 39, 0)),
    Part.ArcOfCircle(Part.Circle(V(0, 0, 0), V(0, 0, 1), 68), math.radians(10), math.radians(35)),
    Part.LineSegment(V(67, 11, 0), V(42, 11, 0)),
    Part.ArcOfCircle(Part.Circle(V(0, 0, 0), V(0, 0, 1), 43), math.radians(15.26), math.radians(29.74)),
    Part.LineSegment(V(11, 42, 0), V(11, 67, 0)),
    Part.ArcOfCircle(Part.Circle(V(0, 0, 0), V(0, 0, 1), 68), math.radians(55), math.radians(80)),
    Part.LineSegment(V(39, 55, 0), V(21, 37, 0)),
    Part.ArcOfCircle(Part.Circle(V(0, 0, 0), V(0, 0, 1), 43), math.radians(60.26), math.radians(74.74)),
    Part.LineSegment(V(-21, 37, 0), V(-39, 55, 0)),
    Part.ArcOfCircle(Part.Circle(V(0, 0, 0), V(0, 0, 1), 68), math.radians(100), math.radians(125)),
    Part.LineSegment(V(-11, 67, 0), V(-11, 42, 0)),
    Part.ArcOfCircle(Part.Circle(V(0, 0, 0), V(0, 0, 1), 43), math.radians(105.26), math.radians(119.74)),
    Part.LineSegment(V(-42, 11, 0), V(-67, 11, 0)),
    Part.ArcOfCircle(Part.Circle(V(0, 0, 0), V(0, 0, 1), 68), math.radians(145), math.radians(170)),
    Part.LineSegment(V(-55, 39, 0), V(-37, 21, 0)),
    Part.ArcOfCircle(Part.Circle(V(0, 0, 0), V(0, 0, 1), 43), math.radians(150.26), math.radians(164.74)),
    Part.LineSegment(V(-37, -21, 0), V(-55, -39, 0)),
    Part.ArcOfCircle(Part.Circle(V(0, 0, 0), V(0, 0, 1), 68), math.radians(-170), math.radians(-145)),
    Part.LineSegment(V(-67, -11, 0), V(-42, -11, 0)),
    Part.ArcOfCircle(Part.Circle(V(0, 0, 0), V(0, 0, 1), 43), math.radians(-164.74), math.radians(-150.26)),
    Part.LineSegment(V(-11, -42, 0), V(-11, -67, 0)),
    Part.ArcOfCircle(Part.Circle(V(0, 0, 0), V(0, 0, 1), 68), math.radians(-125), math.radians(-100)),
    Part.LineSegment(V(-39, -55, 0), V(-21, -37, 0)),
    Part.ArcOfCircle(Part.Circle(V(0, 0, 0), V(0, 0, 1), 43), math.radians(-119.74), math.radians(-105.26)),
], False)
sketch4.addConstraint([
    Sketcher.Constraint("Coincident", 0, 2, 1, 2),
    Sketcher.Constraint("Coincident", 1, 1, 2, 1),
    Sketcher.Constraint("Coincident", 2, 2, 3, 1),
    Sketcher.Constraint("Coincident", 3, 2, 0, 1),
    Sketcher.Constraint("Coincident", 4, 2, 5, 2),
    Sketcher.Constraint("Coincident", 5, 1, 6, 1),
    Sketcher.Constraint("Coincident", 6, 2, 7, 1),
    Sketcher.Constraint("Coincident", 7, 2, 4, 1),
    Sketcher.Constraint("Coincident", 8, 2, 9, 2),
    Sketcher.Constraint("Coincident", 9, 1, 10, 1),
    Sketcher.Constraint("Coincident", 10, 2, 11, 1),
    Sketcher.Constraint("Coincident", 11, 2, 8, 1),
    Sketcher.Constraint("Coincident", 12, 2, 13, 2),
    Sketcher.Constraint("Coincident", 13, 1, 14, 1),
    Sketcher.Constraint("Coincident", 14, 2, 15, 1),
    Sketcher.Constraint("Coincident", 15, 2, 12, 1),
    Sketcher.Constraint("Coincident", 16, 2, 17, 2),
    Sketcher.Constraint("Coincident", 17, 1, 18, 1),
    Sketcher.Constraint("Coincident", 18, 2, 19, 1),
    Sketcher.Constraint("Coincident", 19, 2, 16, 1),
    Sketcher.Constraint("Coincident", 20, 2, 21, 2),
    Sketcher.Constraint("Coincident", 21, 1, 22, 1),
    Sketcher.Constraint("Coincident", 22, 2, 23, 1),
    Sketcher.Constraint("Coincident", 23, 2, 20, 1),
    Sketcher.Constraint("Coincident", 24, 2, 25, 2),
    Sketcher.Constraint("Coincident", 25, 1, 26, 1),
    Sketcher.Constraint("Coincident", 26, 2, 27, 1),
    Sketcher.Constraint("Coincident", 27, 2, 24, 1),
    Sketcher.Constraint("Coincident", 28, 2, 29, 2),
    Sketcher.Constraint("Coincident", 29, 1, 30, 1),
    Sketcher.Constraint("Coincident", 30, 2, 31, 1),
    Sketcher.Constraint("Coincident", 31, 2, 28, 1),
    Sketcher.Constraint("Vertical", 2),
    Sketcher.Constraint("Horizontal", 4),
    Sketcher.Constraint("Horizontal", 10),
    Sketcher.Constraint("Vertical", 12),
    Sketcher.Constraint("Vertical", 18),
    Sketcher.Constraint("Horizontal", 20),
    Sketcher.Constraint("Horizontal", 26),
    Sketcher.Constraint("Vertical", 28),
    Sketcher.Constraint("Coincident", 1, 3, -1, 1),
    Sketcher.Constraint("Coincident", 3, 3, -1, 1),
    Sketcher.Constraint("Coincident", 5, 3, -1, 1),
    Sketcher.Constraint("Coincident", 7, 3, -1, 1),
    Sketcher.Constraint("Coincident", 9, 3, -1, 1),
    Sketcher.Constraint("Coincident", 11, 3, -1, 1),
    Sketcher.Constraint("Coincident", 13, 3, -1, 1),
    Sketcher.Constraint("Coincident", 15, 3, -1, 1),
    Sketcher.Constraint("Coincident", 17, 3, -1, 1),
    Sketcher.Constraint("Coincident", 19, 3, -1, 1),
    Sketcher.Constraint("Coincident", 21, 3, -1, 1),
    Sketcher.Constraint("Coincident", 23, 3, -1, 1),
    Sketcher.Constraint("Coincident", 25, 3, -1, 1),
    Sketcher.Constraint("Coincident", 27, 3, -1, 1),
    Sketcher.Constraint("Coincident", 29, 3, -1, 1),
    Sketcher.Constraint("Coincident", 31, 3, -1, 1),
    Sketcher.Constraint("Equal", 1, 5),
    Sketcher.Constraint("Equal", 3, 7),
    Sketcher.Constraint("Equal", 5, 9),
    Sketcher.Constraint("Equal", 7, 11),
    Sketcher.Constraint("Equal", 9, 13),
    Sketcher.Constraint("Equal", 11, 15),
    Sketcher.Constraint("Equal", 13, 17),
    Sketcher.Constraint("Equal", 15, 19),
    Sketcher.Constraint("Equal", 17, 21),
    Sketcher.Constraint("Equal", 19, 23),
    Sketcher.Constraint("Equal", 21, 25),
    Sketcher.Constraint("Equal", 23, 27),
    Sketcher.Constraint("Equal", 25, 29),
    Sketcher.Constraint("Equal", 27, 31),
    Sketcher.Constraint("Parallel", 0, 6),
    Sketcher.Constraint("Perpendicular", 6, 8),
    Sketcher.Constraint("Parallel", 8, 14),
    Sketcher.Constraint("Perpendicular", 14, 16),
    Sketcher.Constraint("Parallel", 16, 22),
    Sketcher.Constraint("Perpendicular", 22, 24),
    Sketcher.Constraint("Parallel", 24, 30),
    Sketcher.Constraint("Horizontal", 13, 1, 16, 2),
    Sketcher.Constraint("Horizontal", 12, 2, 17, 1),
    Sketcher.Constraint("Horizontal", 14, 2, 19, 2),
    Sketcher.Constraint("Horizontal", 10, 2, 20, 2),
    Sketcher.Constraint("Horizontal", 8, 2, 21, 1),
    Sketcher.Constraint("Horizontal", 5, 1, 24, 2),
    Sketcher.Constraint("Horizontal", 7, 2, 25, 1),
    Sketcher.Constraint("Horizontal", 1, 1, 28, 2),
    Sketcher.Constraint("Horizontal", 0, 2, 29, 1),
    Sketcher.Constraint("Vertical", 5, 1, 8, 2),
    Sketcher.Constraint("Vertical", 4, 2, 9, 1),
    Sketcher.Constraint("Vertical", 2, 2, 12, 2),
    Sketcher.Constraint("Vertical", 0, 2, 13, 1),
    Sketcher.Constraint("Equal", 26, 2),
    Sketcher.Constraint("Equal", 0, 6),
    Sketcher.Constraint("DistanceX", 4, 1, 4, 2, 25.4),
    Sketcher.Constraint("DistanceY", 1, 1, -1, 1, 67.0),
    Sketcher.Constraint("Distance", 0, 25.4),
    Sketcher.Constraint("DistanceY", 4, 2, 9, 1, 22.7),
])
sketch4.setExpression("Constraints[92]", "Params.sketch4_width")
sketch4.setExpression("Constraints[94]", "Params.sketch4_length")
pocket3 = doc.addObject("PartDesign::Pocket", "Pocket002")
body.addObject(pocket3)
pocket3.Profile = sketch4
pocket3.setExpression("Length", "Params.pocket3_length")
pocket3.Reversed = True

doc.recompute()
